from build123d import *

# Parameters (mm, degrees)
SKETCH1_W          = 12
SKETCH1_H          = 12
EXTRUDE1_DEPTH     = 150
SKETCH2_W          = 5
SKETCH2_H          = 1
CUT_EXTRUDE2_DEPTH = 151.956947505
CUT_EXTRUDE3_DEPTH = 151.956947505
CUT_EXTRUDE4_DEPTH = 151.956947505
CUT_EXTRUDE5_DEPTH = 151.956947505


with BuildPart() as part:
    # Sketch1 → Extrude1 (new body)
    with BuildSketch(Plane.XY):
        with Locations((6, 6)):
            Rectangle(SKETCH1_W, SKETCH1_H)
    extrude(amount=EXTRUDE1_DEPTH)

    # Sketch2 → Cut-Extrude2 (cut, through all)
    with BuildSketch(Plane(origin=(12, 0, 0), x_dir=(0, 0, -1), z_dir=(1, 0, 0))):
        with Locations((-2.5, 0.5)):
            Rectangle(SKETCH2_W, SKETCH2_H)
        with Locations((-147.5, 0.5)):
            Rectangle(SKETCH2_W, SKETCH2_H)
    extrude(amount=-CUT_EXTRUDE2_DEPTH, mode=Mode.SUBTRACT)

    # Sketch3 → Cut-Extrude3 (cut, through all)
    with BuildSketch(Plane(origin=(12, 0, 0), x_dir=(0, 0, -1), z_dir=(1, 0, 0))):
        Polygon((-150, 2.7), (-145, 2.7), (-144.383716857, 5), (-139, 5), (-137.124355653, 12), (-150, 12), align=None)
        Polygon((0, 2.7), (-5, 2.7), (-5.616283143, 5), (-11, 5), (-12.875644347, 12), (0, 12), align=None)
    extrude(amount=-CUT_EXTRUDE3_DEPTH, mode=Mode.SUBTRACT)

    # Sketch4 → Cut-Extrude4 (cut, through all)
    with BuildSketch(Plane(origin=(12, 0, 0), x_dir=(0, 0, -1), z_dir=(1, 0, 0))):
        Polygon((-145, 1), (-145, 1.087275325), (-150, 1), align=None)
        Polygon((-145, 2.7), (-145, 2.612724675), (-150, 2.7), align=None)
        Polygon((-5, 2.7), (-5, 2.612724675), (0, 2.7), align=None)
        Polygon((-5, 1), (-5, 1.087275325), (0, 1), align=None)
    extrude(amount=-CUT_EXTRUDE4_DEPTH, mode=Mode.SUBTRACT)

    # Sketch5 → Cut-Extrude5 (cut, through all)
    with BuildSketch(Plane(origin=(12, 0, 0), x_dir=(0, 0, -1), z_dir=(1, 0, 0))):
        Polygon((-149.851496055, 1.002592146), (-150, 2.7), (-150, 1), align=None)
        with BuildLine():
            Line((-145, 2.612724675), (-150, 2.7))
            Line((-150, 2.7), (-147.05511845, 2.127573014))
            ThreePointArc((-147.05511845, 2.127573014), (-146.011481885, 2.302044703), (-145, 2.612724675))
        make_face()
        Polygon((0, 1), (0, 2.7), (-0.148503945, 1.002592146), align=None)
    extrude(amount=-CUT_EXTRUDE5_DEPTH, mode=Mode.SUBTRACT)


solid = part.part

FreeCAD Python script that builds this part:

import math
import FreeCAD as App
import Part
import Sketcher

V = App.Vector
Q = App.Units.Quantity


def add_polygon(sketch, points):
    """Adds a closed chain of lines whose ends are joined by coincident constraints."""
    first, n = sketch.GeometryCount, len(points)
    for a, b in zip(points, points[1:] + points[:1]):
        sketch.addGeometry(Part.LineSegment(App.Vector(*a, 0), App.Vector(*b, 0)), False)
    for i in range(n):
        sketch.addConstraint(Sketcher.Constraint("Coincident", first + i, 2, first + (i + 1) % n, 1))

doc = App.newDocument("Part")
params = doc.addObject("Spreadsheet::Sheet", "Params")
for row, (alias, value) in enumerate([
    ("sketch1_width", "12 mm"),
    ("pad1_length", "150 mm"),
    ("sketch2_width", "1 mm"),
    ("sketch2_height", "5 mm"),
    ("sketch3_height", "5 mm"),
    ("sketch3_width", "9.3 mm"),
    ("sketch4_height", "5 mm"),
    ("sketch5_radius", "8 mm"),
    ("sketch5_length", "3 mm"),
    ("sketch5_width", "1.7 mm"),
], start=1):
    params.set(f"A{row}", alias)
    params.set(f"B{row}", "=" + value)
    params.setAlias(f"B{row}", alias)

body = doc.addObject("PartDesign::Body", "Body")

sketch1 = doc.addObject("Sketcher::SketchObject", "Sketch")
body.addObject(sketch1)
sketch1.AttachmentSupport = (doc.XY_Plane, [""])
sketch1.MapMode = "FlatFace"
add_polygon(sketch1, [(0, 12), (0, 0), (12, 0), (12, 12)])
sketch1.addConstraint(Sketcher.Constraint("Vertical", 0))
sketch1.addConstraint(Sketcher.Constraint("Horizontal", 1))
sketch1.addConstraint(Sketcher.Constraint("Vertical", 2))
sketch1.addConstraint(Sketcher.Constraint("Horizontal", 3))
sketch1.addConstraint(Sketcher.Constraint("Coincident", 0, 2, -1, 1))
sketch1.addConstraint(Sketcher.Constraint("Equal", 3, 0))
sketch1.addConstraint(Sketcher.Constraint("DistanceX", 1, 1, 1, 2, 12.0))
sketch1.setExpression("Constraints[10]", "Params.sketch1_width")
pad1 = doc.addObject("PartDesign::Pad", "Pad")
body.addObject(pad1)
pad1.Profile = sketch1
pad1.setExpression("Length", "Params.pad1_length")

sketch2 = doc.addObject("Sketcher::SketchObject", "Sketch001")
body.addObject(sketch2)
sketch2.AttachmentSupport = (doc.YZ_Plane, [""])
sketch2.MapMode = "FlatFace"
sketch2.AttachmentOffset = App.Placement(V(0, 0, 12), App.Rotation())
add_polygon(sketch2, [(1, 5), (0, 5), (0, 0), (1, 0)])
add_polygon(sketch2, [(1, 150), (0, 150), (0, 145), (1, 145)])
sketch2.addConstraint(Sketcher.Constraint("Horizontal", 0))
sketch2.addConstraint(Sketcher.Constraint("Vertical", 1))
sketch2.addConstraint(Sketcher.Constraint("Horizontal", 2))
sketch2.addConstraint(Sketcher.Constraint("Vertical", 3))
sketch2.addConstraint(Sketcher.Constraint("Horizontal", 4))
sketch2.addConstraint(Sketcher.Constraint("Vertical", 5))
sketch2.addConstraint(Sketcher.Constraint("Horizontal", 6))
sketch2.addConstraint(Sketcher.Constraint("Vertical", 7))
sketch2.addConstraint(Sketcher.Constraint("Coincident", 1, 2, -1, 1))
sketch2.addConstraint(Sketcher.Constraint("PointOnObject", 4, 2, -2))
sketch2.addConstraint(Sketcher.Constraint("Vertical", 3, 2, 6, 2))
sketch2.addConstraint(Sketcher.Constraint("Equal", 3, 5))
sketch2.addConstraint(Sketcher.Constraint("DistanceX", 0, 2, 0, 1, 1.0))
sketch2.addConstraint(Sketcher.Constraint("DistanceY", 1, 2, 1, 1, 5.0))
sketch2.addConstraint(Sketcher.Constraint("DistanceY", -1, 1, 4, 2, 150.0))
sketch2.setExpression("Constraints[20]", "Params.sketch2_width")
sketch2.setExpression("Constraints[21]", "Params.sketch2_height")
pocket1 = doc.addObject("PartDesign::Pocket", "Pocket")
body.addObject(pocket1)
pocket1.Profile = sketch2
pocket1.Type = "ThroughAll"

sketch3 = doc.addObject("Sketcher::SketchObject", "Sketch002")
body.addObject(sketch3)
sketch3.AttachmentSupport = (doc.YZ_Plane, [""])
sketch3.MapMode = "FlatFace"
sketch3.AttachmentOffset = App.Placement(V(0, 0, 12), App.Rotation())
add_polygon(sketch3, [(2.7, 150), (2.7, 145), (5, 144.4), (5, 139), (12, 137.1), (12, 150)])
add_polygon(sketch3, [(2.7, 5), (2.7, 0), (12, 0), (12, 12.9), (5, 11), (5, 5.6)])
sketch3.addConstraint(Sketcher.Constraint("Vertical", 0))
sketch3.addConstraint(Sketcher.Constraint("Vertical", 2))
sketch3.addConstraint(Sketcher.Constraint("Vertical", 4))
sketch3.addConstraint(Sketcher.Constraint("Horizontal", 5))
sketch3.addConstraint(Sketcher.Constraint("Vertical", 6))
sketch3.addConstraint(Sketcher.Constraint("Horizontal", 7))
sketch3.addConstraint(Sketcher.Constraint("Vertical", 8))
sketch3.addConstraint(Sketcher.Constraint("Vertical", 10))
sketch3.addConstraint(Sketcher.Constraint("PointOnObject", 6, 2, -1))
sketch3.addConstraint(Sketcher.Constraint("Parallel", 1, 3))
sketch3.addConstraint(Sketcher.Constraint("Parallel", 9, 11))
sketch3.addConstraint(Sketcher.Constraint("Vertical", 5, 2, 6, 2))
sketch3.addConstraint(Sketcher.Constraint("Vertical", 4, 2, 7, 2))
sketch3.addConstraint(Sketcher.Constraint("Vertical", 2, 2, 9, 2))
sketch3.addConstraint(Sketcher.Constraint("Equal", 0, 6))
sketch3.addConstraint(Sketcher.Constraint("Equal", 4, 8))
sketch3.addConstraint(Sketcher.Constraint("Equal", 2, 10))
sketch3.addConstraint(Sketcher.Constraint("DistanceY", 0, 2, 0, 1, 5.0))
sketch3.addConstraint(Sketcher.Constraint("Angle", 1, Q("-15 deg")))
sketch3.addConstraint(Sketcher.Constraint("DistanceX", 5, 2, 5, 1, 9.3))
sketch3.addConstraint(Sketcher.Constraint("DistanceY", -1, 1, 0, 2, 145.0))
sketch3.addConstraint(Sketcher.Constraint("DistanceX", -1, 1, 1, 2, 5.0))
sketch3.addConstraint(Sketcher.Constraint("DistanceY", -1, 1, 2, 2, 139.0))
sketch3.addConstraint(Sketcher.Constraint("DistanceX", -1, 1, 3, 2, 12.0))
sketch3.setExpression("Constraints[29]", "Params.sketch3_height")
sketch3.setExpression("Constraints[31]", "Params.sketch3_width")
pocket2 = doc.addObject("PartDesign::Pocket", "Pocket001")
body.addObject(pocket2)
pocket2.Profile = sketch3
pocket2.Type = "ThroughAll"

sketch4 = doc.addObject("Sketcher::SketchObject", "Sketch003")
body.addObject(sketch4)
sketch4.AttachmentSupport = (doc.YZ_Plane, [""])
sketch4.MapMode = "FlatFace"
sketch4.AttachmentOffset = App.Placement(V(0, 0, 12), App.Rotation())
add_polygon(sketch4, [(1, 145), (1.09, 145), (1, 150)])
add_polygon(sketch4, [(2.61, 145), (2.7, 145), (2.7, 150)])
add_polygon(sketch4, [(2.7, 5), (2.61, 5), (2.7, 0)])
add_polygon(sketch4, [(1.09, 5), (1, 5), (1, 0)])
sketch4.addConstraint(Sketcher.Constraint("Horizontal", 0))
sketch4.addConstraint(Sketcher.Constraint("Vertical", 2))
sketch4.addConstraint(Sketcher.Constraint("Horizontal", 3))
sketch4.addConstraint(Sketcher.Constraint("Vertical", 4))
sketch4.addConstraint(Sketcher.Constraint("Horizontal", 6))
sketch4.addConstraint(Sketcher.Constraint("Vertical", 8))
sketch4.addConstraint(Sketcher.Constraint("Horizontal", 9))
sketch4.addConstraint(Sketcher.Constraint("Vertical", 10))
sketch4.addConstraint(Sketcher.Constraint("PointOnObject", 7, 2, -1))
sketch4.addConstraint(Sketcher.Constraint("PointOnObject", 10, 2, -1))
sketch4.addConstraint(Sketcher.Constraint("Parallel", 1, 7))
sketch4.addConstraint(Sketcher.Constraint("Parallel", 5, 11))
sketch4.addConstraint(Sketcher.Constraint("Horizontal", 2, 2, 3, 2))
sketch4.addConstraint(Sketcher.Constraint("Horizontal", 1, 2, 4, 2))
sketch4.addConstraint(Sketcher.Constraint("Horizontal", 8, 2, 9, 2))
sketch4.addConstraint(Sketcher.Constraint("Vertical", 5, 2, 6, 2))
sketch4.addConstraint(Sketcher.Constraint("Vertical", 4, 2, 7, 2))
sketch4.addConstraint(Sketcher.Constraint("Vertical", 2, 2, 9, 2))
sketch4.addConstraint(Sketcher.Constraint("Vertical", 0, 2, 11, 2))
sketch4.addConstraint(Sketcher.Constraint("DistanceY", 2, 2, 2, 1, 5.0))
sketch4.addConstraint(Sketcher.Constraint("Angle", 1, Q("91 deg")))
sketch4.addConstraint(Sketcher.Constraint("DistanceY", -1, 1, 0, 2, 145.0))
sketch4.addConstraint(Sketcher.Constraint("DistanceX", -1, 1, 1, 2, 1.0))
sketch4.addConstraint(Sketcher.Constraint("DistanceX", -1, 1, 3, 2, 2.7))
sketch4.setExpression("Constraints[31]", "Params.sketch4_height")
pocket3 = doc.addObject("PartDesign::Pocket", "Pocket002")
body.addObject(pocket3)
pocket3.Profile = sketch4
pocket3.Type = "ThroughAll"

sketch5 = doc.addObject("Sketcher::SketchObject", "Sketch004")
body.addObject(sketch5)
sketch5.AttachmentSupport = (doc.YZ_Plane, [""])
sketch5.MapMode = "FlatFace"
sketch5.AttachmentOffset = App.Placement(V(0, 0, 12), App.Rotation())
add_polygon(sketch5, [(1, 149.85), (2.7, 150), (1, 150)])
sketch5.addGeometry(Part.LineSegment(V(2.61, 145, 0), V(2.7, 150, 0)), False)
sketch5.addGeometry(Part.LineSegment(V(2.7, 150, 0), V(2.13, 147.06, 0)), False)
sketch5.addGeometry(Part.ArcOfCircle(Part.Circle(V(10.09, 147.85, 0), V(0, 0, 1), 8), math.radians(-174.3), math.radians(-159.13)), False)
add_polygon(sketch5, [(1, 0), (2.7, 0), (1, 0.15)])
sketch5.addConstraint(Sketcher.Constraint("Coincident", 3, 2, 4, 1))
sketch5.addConstraint(Sketcher.Constraint("Coincident", 4, 2, 5, 1))
sketch5.addConstraint(Sketcher.Constraint("Coincident", 5, 2, 3, 1))
sketch5.addConstraint(Sketcher.Constraint("Horizontal", 1))
sketch5.addConstraint(Sketcher.Constraint("Horizontal", 6))
sketch5.addConstraint(Sketcher.Constraint("Coincident", 3, 2, 0, 2))
sketch5.addConstraint(Sketcher.Constraint("PointOnObject", 6, 2, -1))
sketch5.addConstraint(Sketcher.Constraint("Parallel", 3, 8))
sketch5.addConstraint(Sketcher.Constraint("Vertical", 3, 2, 6, 2))
sketch5.addConstraint(Sketcher.Constraint("Vertical", 2, 2, 7, 2))
sketch5.addConstraint(Sketcher.Constraint("Vertical", 1, 2, 8, 2))
sketch5.addConstraint(Sketcher.Constraint("Equal", 0, 7))
sketch5.addConstraint(Sketcher.Constraint("Radius", 5, 8.0))
sketch5.addConstraint(Sketcher.Constraint("Angle", 0, Q("5 deg")))
sketch5.addConstraint(Sketcher.Constraint("Angle", 2, Q("-89 deg")))
sketch5.addConstraint(Sketcher.Constraint("Angle", 4, Q("-101 deg")))
sketch5.addConstraint(Sketcher.Constraint("Distance", 4, 3.0))
sketch5.addConstraint(Sketcher.Constraint("DistanceX", 1, 2, 1, 1, 1.7))
sketch5.addConstraint(Sketcher.Constraint("DistanceY", -1, 1, 0, 2, 150.0))
sketch5.addConstraint(Sketcher.Constraint("DistanceX", -1, 1, 1, 2, 1.0))
sketch5.addConstraint(Sketcher.Constraint("DistanceY", -1, 1, 5, 2, 145.0))
sketch5.setExpression("Constraints[18]", "Params.sketch5_radius")
sketch5.setExpression("Constraints[22]", "Params.sketch5_length")
sketch5.setExpression("Constraints[23]", "Params.sketch5_width")
pocket4 = doc.addObject("PartDesign::Pocket", "Pocket003")
body.addObject(pocket4)
pocket4.Profile = sketch5
pocket4.Type = "ThroughAll"

doc.recompute()
